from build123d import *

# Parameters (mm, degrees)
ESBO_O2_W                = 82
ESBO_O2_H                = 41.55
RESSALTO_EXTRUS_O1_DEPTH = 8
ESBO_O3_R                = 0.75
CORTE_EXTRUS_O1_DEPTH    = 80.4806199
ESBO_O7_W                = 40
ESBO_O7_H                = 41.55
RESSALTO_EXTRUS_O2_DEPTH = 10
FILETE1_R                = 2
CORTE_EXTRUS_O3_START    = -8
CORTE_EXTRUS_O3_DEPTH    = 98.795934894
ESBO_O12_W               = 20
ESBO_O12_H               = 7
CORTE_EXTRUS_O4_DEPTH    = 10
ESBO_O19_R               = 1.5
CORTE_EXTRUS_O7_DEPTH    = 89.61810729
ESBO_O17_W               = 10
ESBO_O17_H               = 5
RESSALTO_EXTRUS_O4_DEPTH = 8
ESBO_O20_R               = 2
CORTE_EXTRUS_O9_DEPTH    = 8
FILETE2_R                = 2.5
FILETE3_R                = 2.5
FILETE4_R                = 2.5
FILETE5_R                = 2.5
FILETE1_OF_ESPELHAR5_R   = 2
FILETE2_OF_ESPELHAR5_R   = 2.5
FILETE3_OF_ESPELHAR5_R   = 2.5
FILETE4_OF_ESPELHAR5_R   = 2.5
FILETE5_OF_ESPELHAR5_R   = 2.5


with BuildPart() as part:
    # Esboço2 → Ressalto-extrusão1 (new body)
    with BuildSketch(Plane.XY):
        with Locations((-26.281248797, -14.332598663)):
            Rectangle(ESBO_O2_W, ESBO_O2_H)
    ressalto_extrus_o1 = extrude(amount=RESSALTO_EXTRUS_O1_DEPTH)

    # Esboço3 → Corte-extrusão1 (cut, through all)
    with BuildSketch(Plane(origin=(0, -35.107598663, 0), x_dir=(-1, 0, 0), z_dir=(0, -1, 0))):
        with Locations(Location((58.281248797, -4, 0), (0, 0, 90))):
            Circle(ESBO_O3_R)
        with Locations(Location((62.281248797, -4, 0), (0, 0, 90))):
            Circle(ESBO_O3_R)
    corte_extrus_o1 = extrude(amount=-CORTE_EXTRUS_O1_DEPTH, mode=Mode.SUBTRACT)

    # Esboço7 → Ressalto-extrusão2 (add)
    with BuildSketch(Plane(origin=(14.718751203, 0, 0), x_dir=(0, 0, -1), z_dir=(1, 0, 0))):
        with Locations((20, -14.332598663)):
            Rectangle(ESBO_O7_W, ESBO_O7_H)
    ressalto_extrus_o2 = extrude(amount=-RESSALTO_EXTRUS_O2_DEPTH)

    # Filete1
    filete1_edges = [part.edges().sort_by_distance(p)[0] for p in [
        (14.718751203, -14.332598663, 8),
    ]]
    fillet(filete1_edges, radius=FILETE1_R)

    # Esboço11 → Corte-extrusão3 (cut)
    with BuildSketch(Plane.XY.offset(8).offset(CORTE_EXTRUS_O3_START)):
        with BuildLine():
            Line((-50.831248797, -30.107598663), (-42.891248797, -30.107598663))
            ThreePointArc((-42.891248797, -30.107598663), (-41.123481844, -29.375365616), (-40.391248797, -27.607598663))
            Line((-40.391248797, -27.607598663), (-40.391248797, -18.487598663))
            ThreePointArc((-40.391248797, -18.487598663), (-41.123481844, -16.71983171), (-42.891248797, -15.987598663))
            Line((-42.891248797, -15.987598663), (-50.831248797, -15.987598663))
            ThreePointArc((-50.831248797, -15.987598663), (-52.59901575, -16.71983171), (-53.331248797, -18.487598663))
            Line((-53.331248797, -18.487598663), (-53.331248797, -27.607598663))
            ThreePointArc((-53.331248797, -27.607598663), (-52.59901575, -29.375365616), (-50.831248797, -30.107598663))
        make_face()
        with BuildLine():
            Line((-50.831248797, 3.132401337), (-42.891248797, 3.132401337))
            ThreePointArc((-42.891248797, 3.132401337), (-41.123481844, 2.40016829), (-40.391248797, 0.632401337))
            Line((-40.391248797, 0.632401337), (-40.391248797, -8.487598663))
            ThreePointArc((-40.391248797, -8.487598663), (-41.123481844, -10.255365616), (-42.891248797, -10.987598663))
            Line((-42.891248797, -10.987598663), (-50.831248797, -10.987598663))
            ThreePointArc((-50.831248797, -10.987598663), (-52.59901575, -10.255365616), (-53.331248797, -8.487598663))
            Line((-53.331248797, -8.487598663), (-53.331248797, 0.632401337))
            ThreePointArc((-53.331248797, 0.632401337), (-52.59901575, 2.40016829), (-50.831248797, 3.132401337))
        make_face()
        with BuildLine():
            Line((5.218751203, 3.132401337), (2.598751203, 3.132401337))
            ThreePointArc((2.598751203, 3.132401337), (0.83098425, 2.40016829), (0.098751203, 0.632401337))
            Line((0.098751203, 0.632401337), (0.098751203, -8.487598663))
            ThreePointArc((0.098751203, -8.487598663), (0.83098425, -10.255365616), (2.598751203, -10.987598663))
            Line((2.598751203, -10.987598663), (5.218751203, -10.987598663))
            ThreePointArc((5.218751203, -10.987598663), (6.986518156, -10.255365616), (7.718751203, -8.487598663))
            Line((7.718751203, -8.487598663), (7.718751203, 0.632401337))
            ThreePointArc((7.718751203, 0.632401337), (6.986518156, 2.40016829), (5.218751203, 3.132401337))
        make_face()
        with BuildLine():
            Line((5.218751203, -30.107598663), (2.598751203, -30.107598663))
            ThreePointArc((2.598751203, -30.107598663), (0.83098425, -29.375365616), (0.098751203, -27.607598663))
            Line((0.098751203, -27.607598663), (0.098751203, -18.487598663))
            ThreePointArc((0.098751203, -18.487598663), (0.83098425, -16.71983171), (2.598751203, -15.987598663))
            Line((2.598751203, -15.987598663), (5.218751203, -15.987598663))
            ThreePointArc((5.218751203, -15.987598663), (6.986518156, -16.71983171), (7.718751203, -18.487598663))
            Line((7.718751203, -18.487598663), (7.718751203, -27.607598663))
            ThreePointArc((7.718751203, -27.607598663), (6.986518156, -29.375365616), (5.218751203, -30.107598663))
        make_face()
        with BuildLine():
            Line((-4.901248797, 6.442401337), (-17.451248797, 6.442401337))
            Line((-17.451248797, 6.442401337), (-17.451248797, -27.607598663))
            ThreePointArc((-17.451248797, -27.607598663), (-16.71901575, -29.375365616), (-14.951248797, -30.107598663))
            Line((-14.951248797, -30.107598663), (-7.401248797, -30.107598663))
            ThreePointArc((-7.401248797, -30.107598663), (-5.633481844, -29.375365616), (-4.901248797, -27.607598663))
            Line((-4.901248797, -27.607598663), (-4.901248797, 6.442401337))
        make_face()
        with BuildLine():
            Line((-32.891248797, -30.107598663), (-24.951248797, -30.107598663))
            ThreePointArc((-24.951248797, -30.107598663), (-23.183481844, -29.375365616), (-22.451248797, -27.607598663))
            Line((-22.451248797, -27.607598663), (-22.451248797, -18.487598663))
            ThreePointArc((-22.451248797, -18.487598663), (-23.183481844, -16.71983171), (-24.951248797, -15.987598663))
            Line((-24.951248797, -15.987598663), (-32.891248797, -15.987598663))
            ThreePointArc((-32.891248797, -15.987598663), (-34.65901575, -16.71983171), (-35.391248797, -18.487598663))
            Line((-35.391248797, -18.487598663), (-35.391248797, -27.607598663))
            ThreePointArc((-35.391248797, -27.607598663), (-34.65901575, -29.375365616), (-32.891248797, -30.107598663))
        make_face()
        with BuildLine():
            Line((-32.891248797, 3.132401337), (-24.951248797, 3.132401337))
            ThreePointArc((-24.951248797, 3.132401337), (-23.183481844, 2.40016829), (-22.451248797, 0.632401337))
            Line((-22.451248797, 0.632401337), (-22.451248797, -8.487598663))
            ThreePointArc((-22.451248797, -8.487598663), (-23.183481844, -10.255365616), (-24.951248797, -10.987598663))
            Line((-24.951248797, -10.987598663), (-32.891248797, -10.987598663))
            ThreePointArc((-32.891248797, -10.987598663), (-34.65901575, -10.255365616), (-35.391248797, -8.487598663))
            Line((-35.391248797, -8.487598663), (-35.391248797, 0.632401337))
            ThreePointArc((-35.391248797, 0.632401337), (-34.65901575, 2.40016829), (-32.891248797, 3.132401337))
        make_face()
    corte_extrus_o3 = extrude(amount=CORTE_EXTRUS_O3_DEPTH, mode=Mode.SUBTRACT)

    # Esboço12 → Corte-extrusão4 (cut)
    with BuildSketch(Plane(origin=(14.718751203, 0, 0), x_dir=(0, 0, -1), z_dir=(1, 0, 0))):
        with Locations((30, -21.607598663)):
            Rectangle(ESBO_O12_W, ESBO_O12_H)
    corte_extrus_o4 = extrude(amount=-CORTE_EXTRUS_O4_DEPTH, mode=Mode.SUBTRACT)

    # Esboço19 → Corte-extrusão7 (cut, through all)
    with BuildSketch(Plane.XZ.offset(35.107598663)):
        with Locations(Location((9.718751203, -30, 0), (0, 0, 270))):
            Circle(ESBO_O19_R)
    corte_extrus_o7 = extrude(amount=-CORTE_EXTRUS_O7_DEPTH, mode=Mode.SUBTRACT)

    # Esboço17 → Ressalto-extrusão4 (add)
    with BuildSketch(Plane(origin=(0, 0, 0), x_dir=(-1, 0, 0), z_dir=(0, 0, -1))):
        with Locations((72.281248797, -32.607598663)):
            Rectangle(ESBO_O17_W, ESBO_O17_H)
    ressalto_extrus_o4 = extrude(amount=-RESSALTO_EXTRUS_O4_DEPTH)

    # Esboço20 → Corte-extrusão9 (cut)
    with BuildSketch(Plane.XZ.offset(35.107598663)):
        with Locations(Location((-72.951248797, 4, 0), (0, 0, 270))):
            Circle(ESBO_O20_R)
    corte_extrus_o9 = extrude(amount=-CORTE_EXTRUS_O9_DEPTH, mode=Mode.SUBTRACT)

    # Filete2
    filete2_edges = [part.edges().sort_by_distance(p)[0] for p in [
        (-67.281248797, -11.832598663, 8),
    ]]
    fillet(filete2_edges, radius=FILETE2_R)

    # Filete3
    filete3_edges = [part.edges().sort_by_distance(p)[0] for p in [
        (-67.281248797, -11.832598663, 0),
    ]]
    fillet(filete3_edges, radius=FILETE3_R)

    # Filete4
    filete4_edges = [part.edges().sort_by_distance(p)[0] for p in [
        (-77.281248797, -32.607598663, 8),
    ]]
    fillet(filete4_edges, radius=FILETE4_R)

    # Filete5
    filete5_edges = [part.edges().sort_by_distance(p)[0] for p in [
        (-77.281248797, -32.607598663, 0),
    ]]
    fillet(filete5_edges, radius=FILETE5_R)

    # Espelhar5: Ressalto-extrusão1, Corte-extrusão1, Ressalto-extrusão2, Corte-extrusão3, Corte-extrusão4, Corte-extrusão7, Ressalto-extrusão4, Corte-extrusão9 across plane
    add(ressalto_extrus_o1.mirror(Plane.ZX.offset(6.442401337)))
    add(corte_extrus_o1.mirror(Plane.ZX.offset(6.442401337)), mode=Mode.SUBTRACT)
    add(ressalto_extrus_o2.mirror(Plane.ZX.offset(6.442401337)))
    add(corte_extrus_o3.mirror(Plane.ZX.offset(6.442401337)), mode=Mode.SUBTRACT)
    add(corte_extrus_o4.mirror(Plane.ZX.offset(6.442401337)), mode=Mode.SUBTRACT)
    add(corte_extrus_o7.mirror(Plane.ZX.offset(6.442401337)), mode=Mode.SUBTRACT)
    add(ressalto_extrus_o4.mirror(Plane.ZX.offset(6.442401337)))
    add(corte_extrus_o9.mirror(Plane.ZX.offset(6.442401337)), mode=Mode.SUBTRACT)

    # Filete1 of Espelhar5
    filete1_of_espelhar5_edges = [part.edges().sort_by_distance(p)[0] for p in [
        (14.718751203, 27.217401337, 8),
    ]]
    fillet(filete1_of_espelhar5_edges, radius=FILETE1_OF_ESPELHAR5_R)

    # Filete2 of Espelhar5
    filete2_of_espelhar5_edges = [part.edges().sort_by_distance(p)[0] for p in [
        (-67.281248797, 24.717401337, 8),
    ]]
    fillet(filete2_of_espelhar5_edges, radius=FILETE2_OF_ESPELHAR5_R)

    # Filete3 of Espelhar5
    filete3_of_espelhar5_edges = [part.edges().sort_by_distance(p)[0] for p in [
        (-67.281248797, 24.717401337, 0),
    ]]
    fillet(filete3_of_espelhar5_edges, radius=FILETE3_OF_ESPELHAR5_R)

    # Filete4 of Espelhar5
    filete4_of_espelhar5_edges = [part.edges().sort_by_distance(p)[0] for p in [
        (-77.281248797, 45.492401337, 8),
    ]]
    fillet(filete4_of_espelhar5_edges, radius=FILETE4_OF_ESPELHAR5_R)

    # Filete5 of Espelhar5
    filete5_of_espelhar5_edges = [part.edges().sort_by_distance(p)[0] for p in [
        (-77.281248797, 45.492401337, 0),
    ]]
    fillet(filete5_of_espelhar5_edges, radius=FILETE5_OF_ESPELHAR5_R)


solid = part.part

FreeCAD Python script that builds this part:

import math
import FreeCAD as App
import Part
import Sketcher

V = App.Vector


def edges_at(feature, points):
    """Names of the edges that pass closest to the given points."""
    edges = feature.Shape.Edges
    near = lambda p: min(range(len(edges)), key=lambda i: edges[i].distToShape(Part.Vertex(*p))[0])
    return sorted({f"Edge{near(p) + 1}" for p in points})

doc = App.newDocument("Part")
body = doc.addObject("PartDesign::Body", "Body")

# Sketch on XY plane
sketch1 = body.newObject("Sketcher::SketchObject", "Sketch")
sketch1.AttachmentSupport = (doc.getObject("XY_Plane"), [""])
sketch1.MapMode = "FlatFace"
sketch1.addGeometry([
    Part.LineSegment(V(-67, 6, 0), V(-67, -35, 0)),
    Part.LineSegment(V(-67, -35, 0), V(15, -35, 0)),
    Part.LineSegment(V(15, -35, 0), V(15, 6, 0)),
    Part.LineSegment(V(15, 6, 0), V(-67, 6, 0)),
], False)
sketch1.addConstraint([
    Sketcher.Constraint("Coincident", 0, 2, 1, 1),
    Sketcher.Constraint("Coincident", 1, 2, 2, 1),
    Sketcher.Constraint("Coincident", 2, 2, 3, 1),
    Sketcher.Constraint("Coincident", 3, 2, 0, 1),
    Sketcher.Constraint("Vertical", 0),
    Sketcher.Constraint("Horizontal", 1),
    Sketcher.Constraint("Vertical", 2),
    Sketcher.Constraint("Horizontal", 3),
    Sketcher.Constraint("DistanceX", 1, 1, 1, 2, 82.0),
    Sketcher.Constraint("DistanceY", 0, 2, 0, 1, 41.55),
    Sketcher.Constraint("DistanceY", 0, 2, -1, 1, 35.107599),
    Sketcher.Constraint("DistanceX", 0, 2, -1, 1, 67.281249),
])
pad1 = body.newObject("PartDesign::Pad", "Pad")
pad1.Profile = sketch1
pad1.Length = 8

# Sketch on XZ plane
sketch2 = body.newObject("Sketcher::SketchObject", "Sketch001")
sketch2.AttachmentSupport = (doc.getObject("XZ_Plane"), [""])
sketch2.MapMode = "FlatFace"
sketch2.AttachmentOffset = App.Placement(V(0, 0, 35.107599), App.Rotation())
sketch2.addGeometry([
    Part.Circle(V(-58.3, 4, 0), V(0, 0, 1), 0.8),
    Part.Circle(V(-62.3, 4, 0), V(0, 0, 1), 0.8),
], False)
sketch2.addConstraint([
    Sketcher.Constraint("Equal", 0, 1),
    Sketcher.Constraint("Horizontal", 0, 3, 1, 3),
    Sketcher.Constraint("Diameter", 0, 1.5),
    Sketcher.Constraint("DistanceY", -1, 1, 0, 3, 4.0),
    Sketcher.Constraint("DistanceX", 1, 3, 0, 3, 4.0),
    Sketcher.Constraint("DistanceX", 0, 3, -1, 1, 58.281249),
])
pocket1 = body.newObject("PartDesign::Pocket", "Pocket")
pocket1.Profile = sketch2
pocket1.Type = "ThroughAll"

# Sketch on YZ plane
sketch3 = body.newObject("Sketcher::SketchObject", "Sketch002")
sketch3.AttachmentSupport = (doc.getObject("YZ_Plane"), [""])
sketch3.MapMode = "FlatFace"
sketch3.AttachmentOffset = App.Placement(V(0, 0, 14.718751), App.Rotation())
sketch3.addGeometry([
    Part.LineSegment(V(6, 0, 0), V(-35, 0, 0)),
    Part.LineSegment(V(-35, 0, 0), V(-35, -40, 0)),
    Part.LineSegment(V(-35, -40, 0), V(6, -40, 0)),
    Part.LineSegment(V(6, -40, 0), V(6, 0, 0)),
], False)
sketch3.addConstraint([
    Sketcher.Constraint("Coincident", 0, 2, 1, 1),
    Sketcher.Constraint("Coincident", 1, 2, 2, 1),
    Sketcher.Constraint("Coincident", 2, 2, 3, 1),
    Sketcher.Constraint("Coincident", 3, 2, 0, 1),
    Sketcher.Constraint("Horizontal", 0),
    Sketcher.Constraint("Vertical", 1),
    Sketcher.Constraint("Horizontal", 2),
    Sketcher.Constraint("Vertical", 3),
    Sketcher.Constraint("PointOnObject", 0, 2, -1),
    Sketcher.Constraint("DistanceY", 1, 2, 1, 1, 40.0),
    Sketcher.Constraint("DistanceX", 0, 2, 0, 1, 41.55),
    Sketcher.Constraint("DistanceX", 0, 2, -1, 1, 35.107599),
])
pad2 = body.newObject("PartDesign::Pad", "Pad001")
pad2.Profile = sketch3
pad2.Length = 10
pad2.Reversed = True
doc.recompute()

fillet = body.newObject("PartDesign::Fillet", "Fillet")
fillet.Base = (pad2, edges_at(pad2, [(14.719, -14.333, 8)]))
fillet.Radius = 2

# Sketch on XY plane
sketch4 = body.newObject("Sketcher::SketchObject", "Sketch003")
sketch4.AttachmentSupport = (doc.getObject("XY_Plane"), [""])
sketch4.MapMode = "FlatFace"
sketch4.addGeometry([
    Part.LineSegment(V(-50.8, -30.1, 0), V(-42.9, -30.1, 0)),  # 0
    Part.ArcOfCircle(Part.Circle(V(-42.9, -27.6, 0), V(0, 0, 1), 2.5), math.radians(-90), math.radians(0)),  # 1
    Part.LineSegment(V(-40.4, -27.6, 0), V(-40.4, -18.5, 0)),  # 2
    Part.ArcOfCircle(Part.Circle(V(-42.9, -18.5, 0), V(0, 0, 1), 2.5), math.radians(0), math.radians(90)),  # 3
    Part.LineSegment(V(-42.9, -16, 0), V(-50.8, -16, 0)),  # 4
    Part.ArcOfCircle(Part.Circle(V(-50.8, -18.5, 0), V(0, 0, 1), 2.5), math.radians(90), math.radians(180)),  # 5
    Part.LineSegment(V(-53.3, -18.5, 0), V(-53.3, -27.6, 0)),  # 6
    Part.ArcOfCircle(Part.Circle(V(-50.8, -27.6, 0), V(0, 0, 1), 2.5), math.radians(180), math.radians(270)),  # 7
    Part.LineSegment(V(-42.9, 3.1, 0), V(-50.8, 3.1, 0)),  # 8
    Part.ArcOfCircle(Part.Circle(V(-50.8, 0.6, 0), V(0, 0, 1), 2.5), math.radians(90), math.radians(180)),  # 9
    Part.LineSegment(V(-53.3, 0.6, 0), V(-53.3, -8.5, 0)),  # 10
    Part.ArcOfCircle(Part.Circle(V(-50.8, -8.5, 0), V(0, 0, 1), 2.5), math.radians(180), math.radians(270)),  # 11
    Part.LineSegment(V(-50.8, -11, 0), V(-42.9, -11, 0)),  # 12
    Part.ArcOfCircle(Part.Circle(V(-42.9, -8.5, 0), V(0, 0, 1), 2.5), math.radians(-90), math.radians(0)),  # 13
    Part.LineSegment(V(-40.4, -8.5, 0), V(-40.4, 0.6, 0)),  # 14
    Part.ArcOfCircle(Part.Circle(V(-42.9, 0.6, 0), V(0, 0, 1), 2.5), math.radians(0), math.radians(90)),  # 15
    Part.LineSegment(V(5.2, 3.1, 0), V(2.6, 3.1, 0)),  # 16
    Part.ArcOfCircle(Part.Circle(V(2.6, 0.6, 0), V(0, 0, 1), 2.5), math.radians(90), math.radians(180)),  # 17
    Part.LineSegment(V(0.1, 0.6, 0), V(0.1, -8.5, 0)),  # 18
    Part.ArcOfCircle(Part.Circle(V(2.6, -8.5, 0), V(0, 0, 1), 2.5), math.radians(180), math.radians(270)),  # 19
    Part.LineSegment(V(2.6, -11, 0), V(5.2, -11, 0)),  # 20
    Part.ArcOfCircle(Part.Circle(V(5.2, -8.5, 0), V(0, 0, 1), 2.5), math.radians(-90), math.radians(0)),  # 21
    Part.LineSegment(V(7.7, -8.5, 0), V(7.7, 0.6, 0)),  # 22
    Part.ArcOfCircle(Part.Circle(V(5.2, 0.6, 0), V(0, 0, 1), 2.5), math.radians(0), math.radians(90)),  # 23
    Part.LineSegment(V(2.6, -30.1, 0), V(5.2, -30.1, 0)),  # 24
    Part.ArcOfCircle(Part.Circle(V(5.2, -27.6, 0), V(0, 0, 1), 2.5), math.radians(-90), math.radians(0)),  # 25
    Part.LineSegment(V(7.7, -27.6, 0), V(7.7, -18.5, 0)),  # 26
    Part.ArcOfCircle(Part.Circle(V(5.2, -18.5, 0), V(0, 0, 1), 2.5), math.radians(0), math.radians(90)),  # 27
    Part.LineSegment(V(5.2, -16, 0), V(2.6, -16, 0)),  # 28
    Part.ArcOfCircle(Part.Circle(V(2.6, -18.5, 0), V(0, 0, 1), 2.5), math.radians(90), math.radians(180)),  # 29
    Part.LineSegment(V(0.1, -18.5, 0), V(0.1, -27.6, 0)),  # 30
    Part.ArcOfCircle(Part.Circle(V(2.6, -27.6, 0), V(0, 0, 1), 2.5), math.radians(180), math.radians(270)),  # 31
    Part.LineSegment(V(-4.9, 6.4, 0), V(-17.5, 6.4, 0)),  # 32
    Part.LineSegment(V(-17.5, 6.4, 0), V(-17.5, -27.6, 0)),  # 33
    Part.ArcOfCircle(Part.Circle(V(-15, -27.6, 0), V(0, 0, 1), 2.5), math.radians(180), math.radians(270)),  # 34
    Part.LineSegment(V(-15, -30.1, 0), V(-7.4, -30.1, 0)),  # 35
    Part.ArcOfCircle(Part.Circle(V(-7.4, -27.6, 0), V(0, 0, 1), 2.5), math.radians(-90), math.radians(0)),  # 36
    Part.LineSegment(V(-4.9, -27.6, 0), V(-4.9, 6.4, 0)),  # 37
    Part.LineSegment(V(-32.9, -30.1, 0), V(-25, -30.1, 0)),  # 38
    Part.ArcOfCircle(Part.Circle(V(-25, -27.6, 0), V(0, 0, 1), 2.5), math.radians(-90), math.radians(0)),  # 39
    Part.LineSegment(V(-22.5, -27.6, 0), V(-22.5, -18.5, 0)),  # 40
    Part.ArcOfCircle(Part.Circle(V(-25, -18.5, 0), V(0, 0, 1), 2.5), math.radians(0), math.radians(90)),  # 41
    Part.LineSegment(V(-25, -16, 0), V(-32.9, -16, 0)),  # 42
    Part.ArcOfCircle(Part.Circle(V(-32.9, -18.5, 0), V(0, 0, 1), 2.5), math.radians(90), math.radians(180)),  # 43
    Part.LineSegment(V(-35.4, -18.5, 0), V(-35.4, -27.6, 0)),  # 44
    Part.ArcOfCircle(Part.Circle(V(-32.9, -27.6, 0), V(0, 0, 1), 2.5), math.radians(180), math.radians(270)),  # 45
    Part.LineSegment(V(-25, 3.1, 0), V(-32.9, 3.1, 0)),  # 46
    Part.ArcOfCircle(Part.Circle(V(-32.9, 0.6, 0), V(0, 0, 1), 2.5), math.radians(90), math.radians(180)),  # 47
    Part.LineSegment(V(-35.4, 0.6, 0), V(-35.4, -8.5, 0)),  # 48
    Part.ArcOfCircle(Part.Circle(V(-32.9, -8.5, 0), V(0, 0, 1), 2.5), math.radians(180), math.radians(270)),  # 49
    Part.LineSegment(V(-32.9, -11, 0), V(-25, -11, 0)),  # 50
    Part.ArcOfCircle(Part.Circle(V(-25, -8.5, 0), V(0, 0, 1), 2.5), math.radians(-90), math.radians(0)),  # 51
    Part.LineSegment(V(-22.5, -8.5, 0), V(-22.5, 0.6, 0)),  # 52
    Part.ArcOfCircle(Part.Circle(V(-25, 0.6, 0), V(0, 0, 1), 2.5), math.radians(0), math.radians(90)),  # 53
], False)
sketch4.addConstraint([
    Sketcher.Constraint("Tangent", 0, 2, 1, 1),
    Sketcher.Constraint("Tangent", 1, 2, 2, 1),
    Sketcher.Constraint("Tangent", 2, 2, 3, 1),
    Sketcher.Constraint("Tangent", 3, 2, 4, 1),
    Sketcher.Constraint("Tangent", 4, 2, 5, 1),
    Sketcher.Constraint("Tangent", 5, 2, 6, 1),
    Sketcher.Constraint("Tangent", 6, 2, 7, 1),
    Sketcher.Constraint("Tangent", 7, 2, 0, 1),
    Sketcher.Constraint("Tangent", 8, 2, 9, 1),
    Sketcher.Constraint("Tangent", 9, 2, 10, 1),
    Sketcher.Constraint("Tangent", 10, 2, 11, 1),
    Sketcher.Constraint("Tangent", 11, 2, 12, 1),
    Sketcher.Constraint("Tangent", 12, 2, 13, 1),
    Sketcher.Constraint("Tangent", 13, 2, 14, 1),
    Sketcher.Constraint("Tangent", 14, 2, 15, 1),
    Sketcher.Constraint("Tangent", 15, 2, 8, 1),
    Sketcher.Constraint("Tangent", 16, 2, 17, 1),
    Sketcher.Constraint("Tangent", 17, 2, 18, 1),
    Sketcher.Constraint("Tangent", 18, 2, 19, 1),
    Sketcher.Constraint("Tangent", 19, 2, 20, 1),
    Sketcher.Constraint("Tangent", 20, 2, 21, 1),
    Sketcher.Constraint("Tangent", 21, 2, 22, 1),
    Sketcher.Constraint("Tangent", 22, 2, 23, 1),
    Sketcher.Constraint("Tangent", 23, 2, 16, 1),
    Sketcher.Constraint("Tangent", 24, 2, 25, 1),
    Sketcher.Constraint("Tangent", 25, 2, 26, 1),
    Sketcher.Constraint("Tangent", 26, 2, 27, 1),
    Sketcher.Constraint("Tangent", 27, 2, 28, 1),
    Sketcher.Constraint("Tangent", 28, 2, 29, 1),
    Sketcher.Constraint("Tangent", 29, 2, 30, 1),
    Sketcher.Constraint("Tangent", 30, 2, 31, 1),
    Sketcher.Constraint("Tangent", 31, 2, 24, 1),
    Sketcher.Constraint("Coincident", 32, 2, 33, 1),
    Sketcher.Constraint("Tangent", 33, 2, 34, 1),
    Sketcher.Constraint("Tangent", 34, 2, 35, 1),
    Sketcher.Constraint("Tangent", 35, 2, 36, 1),
    Sketcher.Constraint("Tangent", 36, 2, 37, 1),
    Sketcher.Constraint("Coincident", 37, 2, 32, 1),
    Sketcher.Constraint("Tangent", 38, 2, 39, 1),
    Sketcher.Constraint("Tangent", 39, 2, 40, 1),
    Sketcher.Constraint("Tangent", 40, 2, 41, 1),
    Sketcher.Constraint("Tangent", 41, 2, 42, 1),
    Sketcher.Constraint("Tangent", 42, 2, 43, 1),
    Sketcher.Constraint("Tangent", 43, 2, 44, 1),
    Sketcher.Constraint("Tangent", 44, 2, 45, 1),
    Sketcher.Constraint("Tangent", 45, 2, 38, 1),
    Sketcher.Constraint("Tangent", 46, 2, 47, 1),
    Sketcher.Constraint("Tangent", 47, 2, 48, 1),
    Sketcher.Constraint("Tangent", 48, 2, 49, 1),
    Sketcher.Constraint("Tangent", 49, 2, 50, 1),
    Sketcher.Constraint("Tangent", 50, 2, 51, 1),
    Sketcher.Constraint("Tangent", 51, 2, 52, 1),
    Sketcher.Constraint("Tangent", 52, 2, 53, 1),
    Sketcher.Constraint("Tangent", 53, 2, 46, 1),
    Sketcher.Constraint("Horizontal", 0),
    Sketcher.Constraint("Vertical", 2),
    Sketcher.Constraint("Horizontal", 4),
    Sketcher.Constraint("Vertical", 6),
    Sketcher.Constraint("Horizontal", 8),
    Sketcher.Constraint("Vertical", 10),
    Sketcher.Constraint("Horizontal", 12),
    Sketcher.Constraint("Vertical", 14),
    Sketcher.Constraint("Horizontal", 16),
    Sketcher.Constraint("Vertical", 18),
    Sketcher.Constraint("Horizontal", 20),
    Sketcher.Constraint("Vertical", 22),
    Sketcher.Constraint("Horizontal", 24),
    Sketcher.Constraint("Vertical", 26),
    Sketcher.Constraint("Horizontal", 28),
    Sketcher.Constraint("Vertical", 30),
    Sketcher.Constraint("Horizontal", 32),
    Sketcher.Constraint("Vertical", 33),
    Sketcher.Constraint("Horizontal", 35),
    Sketcher.Constraint("Vertical", 37),
    Sketcher.Constraint("Horizontal", 38),
    Sketcher.Constraint("Vertical", 40),
    Sketcher.Constraint("Horizontal", 42),
    Sketcher.Constraint("Vertical", 44),
    Sketcher.Constraint("Horizontal", 46),
    Sketcher.Constraint("Vertical", 48),
    Sketcher.Constraint("Horizontal", 50),
    Sketcher.Constraint("Vertical", 52),
    Sketcher.Constraint("Equal", 1, 3),
    Sketcher.Constraint("Equal", 3, 5),
    Sketcher.Constraint("Equal", 5, 7),
    Sketcher.Constraint("Equal", 7, 9),
    Sketcher.Constraint("Equal", 9, 11),
    Sketcher.Constraint("Equal", 11, 13),
    Sketcher.Constraint("Equal", 13, 15),
    Sketcher.Constraint("Equal", 15, 17),
    Sketcher.Constraint("Equal", 17, 19),
    Sketcher.Constraint("Equal", 19, 21),
    Sketcher.Constraint("Equal", 21, 23),
    Sketcher.Constraint("Equal", 23, 25),
    Sketcher.Constraint("Equal", 25, 27),
    Sketcher.Constraint("Equal", 27, 29),
    Sketcher.Constraint("Equal", 29, 31),
    Sketcher.Constraint("Equal", 31, 34),
    Sketcher.Constraint("Equal", 34, 36),
    Sketcher.Constraint("Equal", 36, 39),
    Sketcher.Constraint("Equal", 39, 41),
    Sketcher.Constraint("Equal", 41, 43),
    Sketcher.Constraint("Equal", 43, 45),
    Sketcher.Constraint("Equal", 45, 47),
    Sketcher.Constraint("Equal", 47, 49),
    Sketcher.Constraint("Equal", 49, 51),
    Sketcher.Constraint("Equal", 51, 53),
    Sketcher.Constraint("Horizontal", 15, 3, 17, 3),
    Sketcher.Constraint("Horizontal", 13, 3, 19, 3),
    Sketcher.Constraint("Horizontal", 7, 3, 25, 3),
    Sketcher.Constraint("Horizontal", 5, 3, 27, 3),
    Sketcher.Constraint("Horizontal", 31, 3, 34, 3),
    Sketcher.Constraint("Horizontal", 36, 3, 39, 3),
    Sketcher.Constraint("Horizontal", 29, 3, 41, 3),
    Sketcher.Constraint("Horizontal", 23, 3, 47, 3),
    Sketcher.Constraint("Horizontal", 21, 3, 49, 3),
    Sketcher.Constraint("Vertical", 7, 3, 9, 3),
    Sketcher.Constraint("Vertical", 3, 3, 13, 3),
    Sketcher.Constraint("Vertical", 23, 3, 25, 3),
    Sketcher.Constraint("Vertical", 19, 3, 29, 3),
    Sketcher.Constraint("Vertical", 45, 3, 47, 3),
    Sketcher.Constraint("Vertical", 41, 3, 51, 3),
    Sketcher.Constraint("Equal", 12, 38),
    Sketcher.Constraint("Equal", 6, 10),
    Sketcher.Constraint("Radius", 1, 2.5),
    Sketcher.Constraint("DistanceX", 0, 1, 0, 2, 7.94),
    Sketcher.Constraint("DistanceX", 16, 2, 16, 1, 2.62),
    Sketcher.Constraint("DistanceX", 32, 2, 32, 1, 12.55),
    Sketcher.Constraint("DistanceY", 2, 1, 2, 2, 9.12),
    Sketcher.Constraint("DistanceY", 33, 2, 33, 1, 34.05),
    Sketcher.Constraint("DistanceY", 1, 3, -1, 1, 27.607599),
    Sketcher.Constraint("DistanceY", -1, 1, 9, 3, 0.632401),
    Sketcher.Constraint("DistanceX", 1, 3, -1, 1, 42.891249),
    Sketcher.Constraint("DistanceX", -1, 1, 17, 3, 2.598751),
    Sketcher.Constraint("DistanceX", 34, 3, -1, 1, 14.951249),
    Sketcher.Constraint("DistanceX", 39, 3, -1, 1, 24.951249),
])
pocket2 = body.newObject("PartDesign::Pocket", "Pocket001")
pocket2.Profile = sketch4
pocket2.Length = 98.795935
pocket2.Reversed = True

# Sketch on YZ plane
sketch5 = body.newObject("Sketcher::SketchObject", "Sketch004")
sketch5.AttachmentSupport = (doc.getObject("YZ_Plane"), [""])
sketch5.MapMode = "FlatFace"
sketch5.AttachmentOffset = App.Placement(V(0, 0, 14.718751), App.Rotation())
sketch5.addGeometry([
    Part.LineSegment(V(-18, -20, 0), V(-25, -20, 0)),
    Part.LineSegment(V(-25, -20, 0), V(-25, -40, 0)),
    Part.LineSegment(V(-25, -40, 0), V(-18, -40, 0)),
    Part.LineSegment(V(-18, -40, 0), V(-18, -20, 0)),
], False)
sketch5.addConstraint([
    Sketcher.Constraint("Coincident", 0, 2, 1, 1),
    Sketcher.Constraint("Coincident", 1, 2, 2, 1),
    Sketcher.Constraint("Coincident", 2, 2, 3, 1),
    Sketcher.Constraint("Coincident", 3, 2, 0, 1),
    Sketcher.Constraint("Horizontal", 0),
    Sketcher.Constraint("Vertical", 1),
    Sketcher.Constraint("Horizontal", 2),
    Sketcher.Constraint("Vertical", 3),
    Sketcher.Constraint("DistanceX", 0, 2, 0, 1, 7.0),
    Sketcher.Constraint("DistanceY", 1, 2, 1, 1, 20.0),
    Sketcher.Constraint("DistanceY", 0, 2, -1, 1, 20.0),
    Sketcher.Constraint("DistanceX", 0, 2, -1, 1, 25.107599),
])
pocket3 = body.newObject("PartDesign::Pocket", "Pocket002")
pocket3.Profile = sketch5
pocket3.Length = 10

# Sketch on XZ plane
sketch6 = body.newObject("Sketcher::SketchObject", "Sketch005")
sketch6.AttachmentSupport = (doc.getObject("XZ_Plane"), [""])
sketch6.MapMode = "FlatFace"
sketch6.AttachmentOffset = App.Placement(V(0, 0, 35.107599), App.Rotation())
sketch6.addGeometry(Part.Circle(V(9.7, -30, 0), V(0, 0, 1), 1.5), False)
sketch6.addConstraint([
    Sketcher.Constraint("Diameter", 0, 3.0),
    Sketcher.Constraint("DistanceY", 0, 3, -1, 1, 30.0),
    Sketcher.Constraint("DistanceX", -1, 1, 0, 3, 9.718751),
])
pocket4 = body.newObject("PartDesign::Pocket", "Pocket003")
pocket4.Profile = sketch6
pocket4.Type = "ThroughAll"

# Sketch on XY plane
sketch7 = body.newObject("Sketcher::SketchObject", "Sketch006")
sketch7.AttachmentSupport = (doc.getObject("XY_Plane"), [""])
sketch7.MapMode = "FlatFace"
sketch7.addGeometry([
    Part.LineSegment(V(-67.3, -30.1, 0), V(-67.3, -35.1, 0)),
    Part.LineSegment(V(-67.3, -35.1, 0), V(-77.3, -35.1, 0)),
    Part.LineSegment(V(-77.3, -35.1, 0), V(-77.3, -30.1, 0)),
    Part.LineSegment(V(-77.3, -30.1, 0), V(-67.3, -30.1, 0)),
], False)
sketch7.addConstraint([
    Sketcher.Constraint("Coincident", 0, 2, 1, 1),
    Sketcher.Constraint("Coincident", 1, 2, 2, 1),
    Sketcher.Constraint("Coincident", 2, 2, 3, 1),
    Sketcher.Constraint("Coincident", 3, 2, 0, 1),
    Sketcher.Constraint("Vertical", 0),
    Sketcher.Constraint("Horizontal", 1),
    Sketcher.Constraint("Vertical", 2),
    Sketcher.Constraint("Horizontal", 3),
    Sketcher.Constraint("DistanceX", 1, 2, 1, 1, 10.0),
    Sketcher.Constraint("DistanceY", 0, 2, 0, 1, 5.0),
    Sketcher.Constraint("DistanceY", 0, 2, -1, 1, 35.107599),
    Sketcher.Constraint("DistanceX", 0, 2, -1, 1, 67.281249),
])
pad3 = body.newObject("PartDesign::Pad", "Pad002")
pad3.Profile = sketch7
pad3.Length = 8

# Sketch on XZ plane
sketch8 = body.newObject("Sketcher::SketchObject", "Sketch007")
sketch8.AttachmentSupport = (doc.getObject("XZ_Plane"), [""])
sketch8.MapMode = "FlatFace"
sketch8.AttachmentOffset = App.Placement(V(0, 0, 35.107599), App.Rotation())
sketch8.addGeometry(Part.Circle(V(-73, 4, 0), V(0, 0, 1), 2), False)
sketch8.addConstraint([
    Sketcher.Constraint("Diameter", 0, 4.0),
    Sketcher.Constraint("DistanceY", -1, 1, 0, 3, 4.0),
    Sketcher.Constraint("DistanceX", 0, 3, -1, 1, 72.951249),
])
pocket5 = body.newObject("PartDesign::Pocket", "Pocket004")
pocket5.Profile = sketch8
pocket5.Length = 8
doc.recompute()

fillet2 = body.newObject("PartDesign::Fillet", "Fillet001")
fillet2.Base = (pocket5, edges_at(pocket5, [(-67.281, -11.833, 8)]))
fillet2.Radius = 2.5
doc.recompute()

fillet3 = body.newObject("PartDesign::Fillet", "Fillet002")
fillet3.Base = (fillet2, edges_at(fillet2, [(-67.281, -11.833, 0)]))
fillet3.Radius = 2.5
doc.recompute()

fillet4 = body.newObject("PartDesign::Fillet", "Fillet003")
fillet4.Base = (fillet3, edges_at(fillet3, [(-77.281, -32.608, 8)]))
fillet4.Radius = 2.5
doc.recompute()

fillet5 = body.newObject("PartDesign::Fillet", "Fillet004")
fillet5.Base = (fillet4, edges_at(fillet4, [(-77.281, -32.608, 0)]))
fillet5.Radius = 2.5
doc.recompute()

datumplane = body.newObject("PartDesign::Plane", "DatumPlane")
datumplane.AttachmentSupport = (doc.getObject("XZ_Plane"), [""])
datumplane.MapMode = "FlatFace"
datumplane.AttachmentOffset = App.Placement(V(0, 0, -6.442401), App.Rotation())
mirrored = body.newObject("PartDesign::Mirrored", "Mirrored")
mirrored.Originals = [pad1, pocket1, pad2, pocket2, pocket3, pocket4, pad3, pocket5]
mirrored.MirrorPlane = (datumplane, [""])
body.Tip = mirrored
doc.recompute()

fillet6 = body.newObject("PartDesign::Fillet", "Fillet005")
fillet6.Base = (mirrored, edges_at(mirrored, [(14.719, 27.217, 8)]))
fillet6.Radius = 2
doc.recompute()

fillet7 = body.newObject("PartDesign::Fillet", "Fillet006")
fillet7.Base = (fillet6, edges_at(fillet6, [(-67.281, 24.717, 8)]))
fillet7.Radius = 2.5
doc.recompute()

fillet8 = body.newObject("PartDesign::Fillet", "Fillet007")
fillet8.Base = (fillet7, edges_at(fillet7, [(-67.281, 24.717, 0)]))
fillet8.Radius = 2.5
doc.recompute()

fillet9 = body.newObject("PartDesign::Fillet", "Fillet008")
fillet9.Base = (fillet8, edges_at(fillet8, [(-77.281, 45.492, 8)]))
fillet9.Radius = 2.5
doc.recompute()

fillet10 = body.newObject("PartDesign::Fillet", "Fillet009")
fillet10.Base = (fillet9, edges_at(fillet9, [(-77.281, 45.492, 0)]))
fillet10.Radius = 2.5

doc.recompute()
